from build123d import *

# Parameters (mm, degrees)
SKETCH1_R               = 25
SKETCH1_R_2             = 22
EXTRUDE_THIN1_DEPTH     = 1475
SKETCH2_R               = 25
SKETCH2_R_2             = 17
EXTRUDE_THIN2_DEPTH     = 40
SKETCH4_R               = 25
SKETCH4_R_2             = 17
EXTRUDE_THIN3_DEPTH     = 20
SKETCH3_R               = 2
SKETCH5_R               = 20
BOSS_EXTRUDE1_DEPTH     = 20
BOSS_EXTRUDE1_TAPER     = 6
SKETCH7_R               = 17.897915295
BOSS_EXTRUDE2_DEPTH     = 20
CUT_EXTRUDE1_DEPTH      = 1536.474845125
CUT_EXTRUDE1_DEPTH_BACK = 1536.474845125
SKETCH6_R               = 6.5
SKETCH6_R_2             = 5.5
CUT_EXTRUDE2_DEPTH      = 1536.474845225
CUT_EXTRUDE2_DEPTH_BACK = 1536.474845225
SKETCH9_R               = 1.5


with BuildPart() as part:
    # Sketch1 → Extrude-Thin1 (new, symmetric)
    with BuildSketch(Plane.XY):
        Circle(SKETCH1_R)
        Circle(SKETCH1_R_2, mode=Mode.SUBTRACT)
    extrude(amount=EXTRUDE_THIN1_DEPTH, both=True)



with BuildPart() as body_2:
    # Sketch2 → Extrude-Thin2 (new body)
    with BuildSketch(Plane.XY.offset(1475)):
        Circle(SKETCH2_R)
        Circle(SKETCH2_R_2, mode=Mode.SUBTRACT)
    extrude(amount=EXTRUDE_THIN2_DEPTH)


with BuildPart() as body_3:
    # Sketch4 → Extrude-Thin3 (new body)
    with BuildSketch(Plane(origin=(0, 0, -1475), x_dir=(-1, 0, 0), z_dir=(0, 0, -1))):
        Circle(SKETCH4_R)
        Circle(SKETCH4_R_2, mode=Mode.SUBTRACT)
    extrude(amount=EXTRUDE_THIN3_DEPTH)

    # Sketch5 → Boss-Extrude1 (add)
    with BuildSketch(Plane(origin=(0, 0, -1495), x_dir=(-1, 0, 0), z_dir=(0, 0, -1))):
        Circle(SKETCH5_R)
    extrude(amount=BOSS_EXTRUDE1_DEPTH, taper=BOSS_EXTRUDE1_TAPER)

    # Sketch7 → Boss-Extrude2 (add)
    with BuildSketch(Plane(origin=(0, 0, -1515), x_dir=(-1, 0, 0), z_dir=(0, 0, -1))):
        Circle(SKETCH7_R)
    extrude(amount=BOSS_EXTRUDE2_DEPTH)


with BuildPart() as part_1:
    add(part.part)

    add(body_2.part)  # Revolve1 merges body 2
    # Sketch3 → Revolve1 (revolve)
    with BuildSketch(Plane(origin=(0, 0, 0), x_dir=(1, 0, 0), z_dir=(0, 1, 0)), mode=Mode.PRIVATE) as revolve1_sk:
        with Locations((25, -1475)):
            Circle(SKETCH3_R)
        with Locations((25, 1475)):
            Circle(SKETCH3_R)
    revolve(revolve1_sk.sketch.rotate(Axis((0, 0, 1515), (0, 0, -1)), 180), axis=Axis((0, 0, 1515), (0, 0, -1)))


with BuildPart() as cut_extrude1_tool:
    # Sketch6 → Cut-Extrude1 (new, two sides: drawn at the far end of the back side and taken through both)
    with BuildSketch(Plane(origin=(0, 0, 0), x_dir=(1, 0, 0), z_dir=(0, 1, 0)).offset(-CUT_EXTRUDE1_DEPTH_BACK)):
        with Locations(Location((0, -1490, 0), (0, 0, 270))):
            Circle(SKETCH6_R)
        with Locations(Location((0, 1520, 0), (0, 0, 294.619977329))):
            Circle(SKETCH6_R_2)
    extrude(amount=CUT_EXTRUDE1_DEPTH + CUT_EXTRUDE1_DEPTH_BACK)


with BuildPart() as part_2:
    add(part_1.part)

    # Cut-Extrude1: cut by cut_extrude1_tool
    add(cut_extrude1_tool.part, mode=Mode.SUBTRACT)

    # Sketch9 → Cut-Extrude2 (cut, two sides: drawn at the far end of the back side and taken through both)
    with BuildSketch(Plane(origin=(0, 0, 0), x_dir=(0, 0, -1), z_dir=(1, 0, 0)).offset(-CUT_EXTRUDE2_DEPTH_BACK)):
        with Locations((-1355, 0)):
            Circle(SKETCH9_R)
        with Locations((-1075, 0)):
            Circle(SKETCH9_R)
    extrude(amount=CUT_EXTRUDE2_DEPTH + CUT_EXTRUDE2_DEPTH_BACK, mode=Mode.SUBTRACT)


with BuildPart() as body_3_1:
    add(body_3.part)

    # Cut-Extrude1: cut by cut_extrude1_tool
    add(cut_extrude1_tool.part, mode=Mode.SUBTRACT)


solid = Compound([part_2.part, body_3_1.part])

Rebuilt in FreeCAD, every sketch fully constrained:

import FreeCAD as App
import Part
import Sketcher
from FreeCAD import Vector
Q = App.Units.Quantity

doc = App.newDocument("Part")
body = doc.addObject("PartDesign::Body", "Body")

# Sketch on XY plane
sketch1 = doc.addObject("Sketcher::SketchObject", "Sketch")
body.addObject(sketch1)
sketch1.AttachmentSupport = (doc.XY_Plane, [""])
sketch1.MapMode = "FlatFace"
sketch1.addGeometry([
    Part.Circle(Vector(0, 0, 0), Vector(0, 0, 1), 25),
    Part.Circle(Vector(0, 0, 0), Vector(0, 0, 1), 22),
], False)
sketch1.addConstraint([
    Sketcher.Constraint("Coincident", 0, 3, -1, 1),
    Sketcher.Constraint("Coincident", 1, 3, -1, 1),
    Sketcher.Constraint("Diameter", 0, Q("50 mm")),
    Sketcher.Constraint("Diameter", 1, Q("44 mm")),
])
pad1 = doc.addObject("PartDesign::Pad", "Pad")
body.addObject(pad1)
pad1.Profile = sketch1
pad1.Length = 2950
pad1.Midplane = True
body2 = doc.addObject("PartDesign::Body", "Body001")

# Sketch on XY plane
sketch2 = doc.addObject("Sketcher::SketchObject", "Sketch001")
body2.addObject(sketch2)
sketch2.AttachmentSupport = (doc.getObject("XY_Plane001"), [""])
sketch2.MapMode = "FlatFace"
sketch2.AttachmentOffset = App.Placement(Vector(0, 0, 1475), App.Rotation())
sketch2.addGeometry([
    Part.Circle(Vector(0, 0, 0), Vector(0, 0, 1), 25),
    Part.Circle(Vector(0, 0, 0), Vector(0, 0, 1), 17),
], False)
sketch2.addConstraint([
    Sketcher.Constraint("Coincident", 0, 3, -1, 1),
    Sketcher.Constraint("Coincident", 1, 3, -1, 1),
    Sketcher.Constraint("Diameter", 0, Q("50 mm")),
    Sketcher.Constraint("Diameter", 1, Q("34 mm")),
])
pad2 = doc.addObject("PartDesign::Pad", "Pad001")
body2.addObject(pad2)
pad2.Profile = sketch2
pad2.Length = 40
body3 = doc.addObject("PartDesign::Body", "Body002")

# Sketch on XY plane
sketch3 = doc.addObject("Sketcher::SketchObject", "Sketch002")
body3.addObject(sketch3)
sketch3.AttachmentSupport = (doc.getObject("XY_Plane002"), [""])
sketch3.MapMode = "FlatFace"
sketch3.AttachmentOffset = App.Placement(Vector(0, 0, -1475), App.Rotation())
sketch3.addGeometry([
    Part.Circle(Vector(0, 0, 0), Vector(0, 0, 1), 25),
    Part.Circle(Vector(0, 0, 0), Vector(0, 0, 1), 17),
], False)
sketch3.addConstraint([
    Sketcher.Constraint("Coincident", 0, 3, -1, 1),
    Sketcher.Constraint("Coincident", 1, 3, -1, 1),
    Sketcher.Constraint("Diameter", 0, Q("50 mm")),
    Sketcher.Constraint("Diameter", 1, Q("34 mm")),
])
pad3 = doc.addObject("PartDesign::Pad", "Pad002")
body3.addObject(pad3)
pad3.Profile = sketch3
pad3.Length = 20
pad3.Reversed = True

# Sketch on XY plane
sketch4 = doc.addObject("Sketcher::SketchObject", "Sketch003")
body3.addObject(sketch4)
sketch4.AttachmentSupport = (doc.getObject("XY_Plane002"), [""])
sketch4.MapMode = "FlatFace"
sketch4.AttachmentOffset = App.Placement(Vector(0, 0, -1495), App.Rotation())
sketch4.addGeometry(Part.Circle(Vector(0, 0, 0), Vector(0, 0, 1), 20), False)
sketch4.addConstraint([
    Sketcher.Constraint("Coincident", 0, 3, -1, 1),
    Sketcher.Constraint("Diameter", 0, Q("40 mm")),
])
pad4 = doc.addObject("PartDesign::Pad", "Pad003")
body3.addObject(pad4)
pad4.Profile = sketch4
pad4.Length = 20
pad4.Reversed = True
pad4.TaperAngle = -6

# Sketch on XY plane
sketch5 = doc.addObject("Sketcher::SketchObject", "Sketch004")
body3.addObject(sketch5)
sketch5.AttachmentSupport = (doc.getObject("XY_Plane002"), [""])
sketch5.MapMode = "FlatFace"
sketch5.AttachmentOffset = App.Placement(Vector(0, 0, -1515), App.Rotation())
sketch5.addGeometry(Part.Circle(Vector(0, 0, 0), Vector(0, 0, 1), 17.897915), False)
sketch5.addConstraint([
    Sketcher.Constraint("Coincident", 0, 3, -1, 1),
    Sketcher.Constraint("Diameter", 0, Q("35.795831 mm")),
])
pad5 = doc.addObject("PartDesign::Pad", "Pad004")
body3.addObject(pad5)
pad5.Profile = sketch5
pad5.Length = 20
pad5.Reversed = True
doc.recompute()

boolean = doc.addObject("PartDesign::Boolean", "Boolean")
body.addObject(boolean)
boolean.Type = "Fuse"
boolean.addObjects([body2])

# Sketch on XZ plane
sketch6 = doc.addObject("Sketcher::SketchObject", "Sketch005")
body.addObject(sketch6)
sketch6.AttachmentSupport = (doc.XZ_Plane, [""])
sketch6.MapMode = "FlatFace"
sketch6.addGeometry([
    Part.Circle(Vector(25, 1475, 0), Vector(0, 0, 1), 2),
    Part.Circle(Vector(25, -1475, 0), Vector(0, 0, 1), 2),
], False)
sketch6.addConstraint([
    Sketcher.Constraint("Equal", 0, 1),
    Sketcher.Constraint("Symmetric", 0, 3, 1, 3, -1),
    Sketcher.Constraint("Diameter", 0, Q("4 mm")),
    Sketcher.Constraint("DistanceX", -1, 1, 0, 3, Q("25 mm")),
    Sketcher.Constraint("DistanceY", -1, 1, 0, 3, Q("1475 mm")),
])
revolution = doc.addObject("PartDesign::Revolution", "Revolution")
body.addObject(revolution)
revolution.Profile = sketch6
revolution.ReferenceAxis = (sketch6, ["V_Axis"])
revolution.Angle = 360
body4 = doc.addObject("PartDesign::Body", "Body003")
body4.AllowCompound = True

# Sketch on XZ plane
sketch7 = doc.addObject("Sketcher::SketchObject", "Sketch006")
body4.addObject(sketch7)
sketch7.AttachmentSupport = (doc.getObject("XZ_Plane003"), [""])
sketch7.MapMode = "FlatFace"
sketch7.addGeometry([
    Part.Circle(Vector(0, 1490, 0), Vector(0, 0, 1), 6.5),
    Part.Circle(Vector(0, -1520, 0), Vector(0, 0, 1), 5.5),
], False)
sketch7.addConstraint([
    Sketcher.Constraint("PointOnObject", 0, 3, -2),
    Sketcher.Constraint("PointOnObject", 1, 3, -2),
    Sketcher.Constraint("Diameter", 0, Q("13 mm")),
    Sketcher.Constraint("Diameter", 1, Q("11 mm")),
    Sketcher.Constraint("DistanceY", -1, 1, 0, 3, Q("1490 mm")),
    Sketcher.Constraint("DistanceY", 1, 3, -1, 1, Q("1520 mm")),
])
pad6 = doc.addObject("PartDesign::Pad", "Pad005")
body4.addObject(pad6)
pad6.Profile = sketch7
pad6.Type = "TwoLengths"
pad6.Length = 1536.474845
pad6.Length2 = 1536.474845
pad6.Reversed = True
doc.recompute()

body5 = doc.addObject("PartDesign::Body", "Body004")
body5.BaseFeature = body4
boolean2 = doc.addObject("PartDesign::Boolean", "Boolean001")
body.addObject(boolean2)
boolean2.Type = "Cut"
boolean2.addObjects([body5])
doc.recompute()

# Sketch on YZ plane
sketch8 = doc.addObject("Sketcher::SketchObject", "Sketch007")
body.addObject(sketch8)
sketch8.AttachmentSupport = (doc.YZ_Plane, [""])
sketch8.MapMode = "FlatFace"
sketch8.addGeometry([
    Part.Circle(Vector(0, 1355, 0), Vector(0, 0, 1), 1.5),
    Part.Circle(Vector(0, 1075, 0), Vector(0, 0, 1), 1.5),
], False)
sketch8.addConstraint([
    Sketcher.Constraint("Equal", 0, 1),
    Sketcher.Constraint("PointOnObject", 0, 3, -2),
    Sketcher.Constraint("PointOnObject", 1, 3, -2),
    Sketcher.Constraint("Diameter", 0, Q("3 mm")),
    Sketcher.Constraint("DistanceY", -1, 1, 0, 3, Q("1355 mm")),
    Sketcher.Constraint("DistanceY", -1, 1, 1, 3, Q("1075 mm")),
])
pocket1 = doc.addObject("PartDesign::Pocket", "Pocket")
body.addObject(pocket1)
pocket1.Profile = sketch8
pocket1.Type = "ThroughAll"
pocket1.Midplane = True
doc.recompute()

boolean3 = doc.addObject("PartDesign::Boolean", "Boolean002")
body3.addObject(boolean3)
boolean3.Type = "Cut"
boolean3.addObjects([body4])

doc.recompute()
